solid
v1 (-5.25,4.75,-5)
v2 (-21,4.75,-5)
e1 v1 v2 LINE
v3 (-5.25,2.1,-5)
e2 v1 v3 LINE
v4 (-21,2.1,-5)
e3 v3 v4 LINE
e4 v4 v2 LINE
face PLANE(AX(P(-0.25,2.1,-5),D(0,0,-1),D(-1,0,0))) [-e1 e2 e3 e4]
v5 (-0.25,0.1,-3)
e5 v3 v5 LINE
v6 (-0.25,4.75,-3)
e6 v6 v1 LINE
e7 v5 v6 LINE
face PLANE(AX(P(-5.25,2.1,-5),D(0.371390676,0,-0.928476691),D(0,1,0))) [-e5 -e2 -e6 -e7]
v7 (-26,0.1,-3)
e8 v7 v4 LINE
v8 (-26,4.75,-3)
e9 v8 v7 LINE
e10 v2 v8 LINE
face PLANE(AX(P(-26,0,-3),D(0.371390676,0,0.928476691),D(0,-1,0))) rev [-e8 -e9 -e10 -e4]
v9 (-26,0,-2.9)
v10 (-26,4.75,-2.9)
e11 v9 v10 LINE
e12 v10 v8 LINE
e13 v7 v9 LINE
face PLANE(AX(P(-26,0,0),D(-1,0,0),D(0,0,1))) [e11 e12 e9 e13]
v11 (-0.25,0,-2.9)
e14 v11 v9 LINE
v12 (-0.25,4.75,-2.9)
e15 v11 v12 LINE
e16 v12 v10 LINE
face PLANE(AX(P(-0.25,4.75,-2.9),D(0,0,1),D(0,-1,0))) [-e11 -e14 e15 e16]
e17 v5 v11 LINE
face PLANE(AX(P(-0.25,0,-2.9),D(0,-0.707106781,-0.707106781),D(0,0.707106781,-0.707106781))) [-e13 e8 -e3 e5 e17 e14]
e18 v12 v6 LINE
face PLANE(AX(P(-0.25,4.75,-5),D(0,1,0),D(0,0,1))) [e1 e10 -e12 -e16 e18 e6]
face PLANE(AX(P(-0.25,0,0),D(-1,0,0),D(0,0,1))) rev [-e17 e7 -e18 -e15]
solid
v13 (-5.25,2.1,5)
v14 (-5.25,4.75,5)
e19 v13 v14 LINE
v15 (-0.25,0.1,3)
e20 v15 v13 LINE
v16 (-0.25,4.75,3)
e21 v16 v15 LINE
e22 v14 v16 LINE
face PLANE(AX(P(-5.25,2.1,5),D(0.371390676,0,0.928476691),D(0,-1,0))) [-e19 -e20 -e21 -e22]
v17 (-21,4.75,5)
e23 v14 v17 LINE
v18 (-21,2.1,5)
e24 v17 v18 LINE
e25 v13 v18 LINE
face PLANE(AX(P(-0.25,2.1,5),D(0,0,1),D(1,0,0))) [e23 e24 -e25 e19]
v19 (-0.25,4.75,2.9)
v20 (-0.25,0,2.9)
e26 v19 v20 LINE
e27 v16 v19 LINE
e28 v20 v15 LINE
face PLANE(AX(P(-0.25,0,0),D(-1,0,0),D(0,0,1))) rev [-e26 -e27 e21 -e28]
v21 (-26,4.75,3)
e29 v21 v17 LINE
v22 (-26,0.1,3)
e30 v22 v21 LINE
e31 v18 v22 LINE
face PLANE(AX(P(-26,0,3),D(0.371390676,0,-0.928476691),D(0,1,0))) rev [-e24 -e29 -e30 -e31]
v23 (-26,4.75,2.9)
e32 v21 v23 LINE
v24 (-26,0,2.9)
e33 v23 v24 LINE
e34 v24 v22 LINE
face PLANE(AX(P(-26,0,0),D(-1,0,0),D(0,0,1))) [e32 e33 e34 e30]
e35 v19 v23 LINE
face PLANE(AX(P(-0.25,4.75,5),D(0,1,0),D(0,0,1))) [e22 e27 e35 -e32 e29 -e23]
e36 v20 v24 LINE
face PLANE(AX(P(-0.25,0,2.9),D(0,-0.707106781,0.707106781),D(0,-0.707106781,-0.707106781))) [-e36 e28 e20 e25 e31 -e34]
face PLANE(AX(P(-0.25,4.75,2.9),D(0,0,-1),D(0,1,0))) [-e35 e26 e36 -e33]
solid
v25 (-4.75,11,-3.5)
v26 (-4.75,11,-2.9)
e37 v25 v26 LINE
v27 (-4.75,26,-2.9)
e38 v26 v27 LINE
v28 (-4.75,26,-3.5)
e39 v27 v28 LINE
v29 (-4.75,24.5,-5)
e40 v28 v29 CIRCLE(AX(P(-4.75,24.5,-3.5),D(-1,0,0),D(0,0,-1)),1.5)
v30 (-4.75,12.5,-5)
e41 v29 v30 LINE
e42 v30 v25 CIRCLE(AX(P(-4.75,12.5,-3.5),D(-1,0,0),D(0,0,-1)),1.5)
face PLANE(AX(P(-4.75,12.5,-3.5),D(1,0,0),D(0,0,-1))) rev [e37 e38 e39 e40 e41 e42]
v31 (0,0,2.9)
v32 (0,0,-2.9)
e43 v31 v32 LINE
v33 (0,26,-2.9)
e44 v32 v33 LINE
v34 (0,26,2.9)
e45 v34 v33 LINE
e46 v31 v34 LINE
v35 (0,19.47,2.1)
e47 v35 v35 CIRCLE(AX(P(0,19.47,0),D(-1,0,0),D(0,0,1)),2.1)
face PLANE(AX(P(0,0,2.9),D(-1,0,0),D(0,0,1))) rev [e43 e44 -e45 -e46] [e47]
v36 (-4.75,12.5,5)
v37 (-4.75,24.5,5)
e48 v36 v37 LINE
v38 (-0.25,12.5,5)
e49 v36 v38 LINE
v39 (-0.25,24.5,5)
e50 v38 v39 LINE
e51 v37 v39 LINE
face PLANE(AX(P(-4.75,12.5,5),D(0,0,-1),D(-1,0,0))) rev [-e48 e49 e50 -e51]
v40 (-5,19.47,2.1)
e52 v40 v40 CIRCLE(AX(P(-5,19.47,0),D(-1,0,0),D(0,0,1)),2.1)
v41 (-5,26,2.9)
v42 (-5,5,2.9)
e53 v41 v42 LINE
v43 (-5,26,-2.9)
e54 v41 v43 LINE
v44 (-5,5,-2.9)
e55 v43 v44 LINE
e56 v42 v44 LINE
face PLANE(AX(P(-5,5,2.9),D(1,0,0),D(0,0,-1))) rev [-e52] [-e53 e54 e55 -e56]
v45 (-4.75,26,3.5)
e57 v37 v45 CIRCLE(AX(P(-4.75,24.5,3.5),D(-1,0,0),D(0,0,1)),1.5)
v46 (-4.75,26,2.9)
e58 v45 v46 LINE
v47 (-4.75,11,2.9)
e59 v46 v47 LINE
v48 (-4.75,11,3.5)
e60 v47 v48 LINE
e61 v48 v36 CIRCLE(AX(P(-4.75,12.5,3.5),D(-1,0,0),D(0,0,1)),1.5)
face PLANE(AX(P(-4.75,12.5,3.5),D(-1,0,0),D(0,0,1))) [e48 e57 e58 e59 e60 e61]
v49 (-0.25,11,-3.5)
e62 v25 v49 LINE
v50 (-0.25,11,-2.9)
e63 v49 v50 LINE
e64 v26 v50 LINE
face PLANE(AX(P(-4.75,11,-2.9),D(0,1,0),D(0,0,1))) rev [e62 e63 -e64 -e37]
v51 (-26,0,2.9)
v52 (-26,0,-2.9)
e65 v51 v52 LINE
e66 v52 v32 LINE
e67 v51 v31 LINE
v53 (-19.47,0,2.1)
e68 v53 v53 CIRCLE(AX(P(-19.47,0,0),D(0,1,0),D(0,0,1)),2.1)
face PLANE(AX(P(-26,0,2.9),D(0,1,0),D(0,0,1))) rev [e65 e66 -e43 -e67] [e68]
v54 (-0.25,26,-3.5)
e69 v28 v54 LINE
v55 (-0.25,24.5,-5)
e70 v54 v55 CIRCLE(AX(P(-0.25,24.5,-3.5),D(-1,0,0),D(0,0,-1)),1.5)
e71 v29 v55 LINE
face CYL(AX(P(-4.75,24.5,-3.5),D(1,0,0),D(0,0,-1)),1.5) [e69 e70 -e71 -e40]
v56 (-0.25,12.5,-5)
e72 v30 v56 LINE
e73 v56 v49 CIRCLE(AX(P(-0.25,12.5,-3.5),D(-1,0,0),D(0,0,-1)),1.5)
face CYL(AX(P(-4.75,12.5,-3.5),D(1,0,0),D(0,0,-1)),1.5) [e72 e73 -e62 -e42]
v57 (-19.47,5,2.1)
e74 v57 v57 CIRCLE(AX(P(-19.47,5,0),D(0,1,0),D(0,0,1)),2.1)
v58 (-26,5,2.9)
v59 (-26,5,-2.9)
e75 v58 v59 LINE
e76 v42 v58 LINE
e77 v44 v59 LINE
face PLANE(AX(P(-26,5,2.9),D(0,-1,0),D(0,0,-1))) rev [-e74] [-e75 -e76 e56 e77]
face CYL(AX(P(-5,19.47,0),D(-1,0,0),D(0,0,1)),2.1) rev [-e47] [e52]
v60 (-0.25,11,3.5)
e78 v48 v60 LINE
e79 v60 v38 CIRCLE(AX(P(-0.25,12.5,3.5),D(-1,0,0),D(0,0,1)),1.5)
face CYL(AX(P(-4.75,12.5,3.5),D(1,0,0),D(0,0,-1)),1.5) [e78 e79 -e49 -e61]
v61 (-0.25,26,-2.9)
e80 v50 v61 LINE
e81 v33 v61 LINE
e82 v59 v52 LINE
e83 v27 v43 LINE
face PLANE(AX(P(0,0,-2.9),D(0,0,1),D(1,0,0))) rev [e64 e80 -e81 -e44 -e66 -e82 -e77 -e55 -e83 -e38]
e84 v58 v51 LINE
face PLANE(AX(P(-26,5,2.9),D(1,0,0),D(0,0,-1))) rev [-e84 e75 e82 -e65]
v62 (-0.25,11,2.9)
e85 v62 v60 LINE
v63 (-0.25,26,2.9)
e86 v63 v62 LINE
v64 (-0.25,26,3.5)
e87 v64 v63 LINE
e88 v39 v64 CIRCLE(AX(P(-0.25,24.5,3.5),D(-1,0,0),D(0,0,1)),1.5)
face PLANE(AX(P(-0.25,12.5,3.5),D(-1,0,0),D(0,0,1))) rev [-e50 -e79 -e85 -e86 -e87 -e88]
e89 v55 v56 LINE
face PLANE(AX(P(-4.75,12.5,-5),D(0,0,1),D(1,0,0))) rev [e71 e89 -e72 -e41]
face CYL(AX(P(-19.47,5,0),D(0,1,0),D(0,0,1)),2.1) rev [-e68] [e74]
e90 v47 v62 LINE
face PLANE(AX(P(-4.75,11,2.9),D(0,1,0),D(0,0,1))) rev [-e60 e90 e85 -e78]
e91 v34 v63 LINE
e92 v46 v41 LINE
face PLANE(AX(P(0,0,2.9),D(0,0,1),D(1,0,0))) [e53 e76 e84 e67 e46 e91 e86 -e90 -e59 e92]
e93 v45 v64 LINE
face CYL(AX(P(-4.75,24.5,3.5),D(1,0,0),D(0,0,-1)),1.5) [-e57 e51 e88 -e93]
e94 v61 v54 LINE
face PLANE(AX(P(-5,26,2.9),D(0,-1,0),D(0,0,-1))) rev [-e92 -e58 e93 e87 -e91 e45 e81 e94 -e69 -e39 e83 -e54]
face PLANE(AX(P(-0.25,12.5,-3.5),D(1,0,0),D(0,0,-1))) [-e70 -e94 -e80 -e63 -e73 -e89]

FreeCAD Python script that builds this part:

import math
import FreeCAD as App
import Part
import Sketcher
from FreeCAD import Vector
Q = App.Units.Quantity


def edges_at(feature, points):
    """Names of the edges that pass closest to the given points."""
    edges = feature.Shape.Edges
    near = lambda p: min(range(len(edges)), key=lambda i: edges[i].distToShape(Part.Vertex(*p))[0])
    return sorted({f"Edge{near(p) + 1}" for p in points})

doc = App.newDocument("Part")
body = doc.addObject("PartDesign::Body", "Body")

# Sketch on XY plane
sketch1 = body.newObject("Sketcher::SketchObject", "Sketch")
sketch1.AttachmentSupport = (doc.getObject("XY_Plane"), [""])
sketch1.MapMode = "FlatFace"
sketch1.addGeometry([
    Part.LineSegment(Vector(-26, 0, 0), Vector(0, 0, 0)),  # 0
    Part.LineSegment(Vector(0, 0, 0), Vector(0, 26, 0)),  # 1
    Part.LineSegment(Vector(0, 26, 0), Vector(-5, 26, 0)),  # 2
    Part.LineSegment(Vector(-5, 26, 0), Vector(-5, 5, 0)),  # 3
    Part.LineSegment(Vector(-5, 5, 0), Vector(-26, 5, 0)),  # 4
    Part.LineSegment(Vector(-26, 5, 0), Vector(-26, 0, 0)),  # 5
], False)
sketch1.addConstraint([
    Sketcher.Constraint("Coincident", 0, 2, 1, 1),
    Sketcher.Constraint("Coincident", 1, 2, 2, 1),
    Sketcher.Constraint("Coincident", 2, 2, 3, 1),
    Sketcher.Constraint("Coincident", 3, 2, 4, 1),
    Sketcher.Constraint("Coincident", 4, 2, 5, 1),
    Sketcher.Constraint("Coincident", 5, 2, 0, 1),
    Sketcher.Constraint("Horizontal", 0),
    Sketcher.Constraint("Vertical", 1),
    Sketcher.Constraint("Horizontal", 2),
    Sketcher.Constraint("Vertical", 3),
    Sketcher.Constraint("Horizontal", 4),
    Sketcher.Constraint("Vertical", 5),
    Sketcher.Constraint("Coincident", 0, 2, -1, 1),
    Sketcher.Constraint("Equal", 0, 1),
    Sketcher.Constraint("Equal", 4, 3),
    Sketcher.Constraint("DistanceX", 0, 1, 0, 2, 26.0),
    Sketcher.Constraint("DistanceX", 2, 2, 2, 1, 5.0),
])
pad1 = body.newObject("PartDesign::Pad", "Pad")
pad1.Profile = sketch1
pad1.Length = 5.8
pad1.Midplane = True

# Sketch on YZ plane
sketch2 = body.newObject("Sketcher::SketchObject", "Sketch001")
sketch2.AttachmentSupport = (doc.getObject("YZ_Plane"), [""])
sketch2.MapMode = "FlatFace"
sketch2.AttachmentOffset = App.Placement(Vector(0, 0, -2.5), App.Rotation())
sketch2.addGeometry([
    Part.LineSegment(Vector(11, -3.5, 0), Vector(11, -2.9, 0)),  # 0
    Part.LineSegment(Vector(11, -2.9, 0), Vector(26, -2.9, 0)),  # 1
    Part.LineSegment(Vector(26, -2.9, 0), Vector(26, -3.5, 0)),  # 2
    Part.ArcOfCircle(Part.Circle(Vector(24.5, -3.5, 0), Vector(0, 0, 1), 1.5), math.radians(-90), math.radians(0)),  # 3
    Part.LineSegment(Vector(24.5, -5, 0), Vector(12.5, -5, 0)),  # 4
    Part.ArcOfCircle(Part.Circle(Vector(12.5, -3.5, 0), Vector(0, 0, 1), 1.5), math.radians(180), math.radians(270)),  # 5
    Part.LineSegment(Vector(26, 2.9, 0), Vector(11, 2.9, 0)),  # 6
    Part.LineSegment(Vector(11, 2.9, 0), Vector(11, 3.5, 0)),  # 7
    Part.ArcOfCircle(Part.Circle(Vector(12.5, 3.5, 0), Vector(0, 0, 1), 1.5), math.radians(90), math.radians(180)),  # 8
    Part.LineSegment(Vector(12.5, 5, 0), Vector(24.5, 5, 0)),  # 9
    Part.ArcOfCircle(Part.Circle(Vector(24.5, 3.5, 0), Vector(0, 0, 1), 1.5), math.radians(0), math.radians(90)),  # 10
    Part.LineSegment(Vector(26, 3.5, 0), Vector(26, 2.9, 0)),  # 11
], False)
sketch2.addConstraint([
    Sketcher.Constraint("Coincident", 0, 2, 1, 1),
    Sketcher.Constraint("Coincident", 1, 2, 2, 1),
    Sketcher.Constraint("Tangent", 2, 2, 3, 2),
    Sketcher.Constraint("Tangent", 3, 1, 4, 1),
    Sketcher.Constraint("Tangent", 4, 2, 5, 2),
    Sketcher.Constraint("Tangent", 5, 1, 0, 1),
    Sketcher.Constraint("Coincident", 6, 2, 7, 1),
    Sketcher.Constraint("Tangent", 7, 2, 8, 2),
    Sketcher.Constraint("Tangent", 8, 1, 9, 1),
    Sketcher.Constraint("Tangent", 9, 2, 10, 2),
    Sketcher.Constraint("Tangent", 10, 1, 11, 1),
    Sketcher.Constraint("Coincident", 11, 2, 6, 1),
    Sketcher.Constraint("Vertical", 0),
    Sketcher.Constraint("Horizontal", 1),
    Sketcher.Constraint("Vertical", 2),
    Sketcher.Constraint("Horizontal", 4),
    Sketcher.Constraint("Horizontal", 6),
    Sketcher.Constraint("Vertical", 7),
    Sketcher.Constraint("Horizontal", 9),
    Sketcher.Constraint("Vertical", 11),
    Sketcher.Constraint("Equal", 3, 5),
    Sketcher.Constraint("Equal", 5, 8),
    Sketcher.Constraint("Equal", 8, 10),
    Sketcher.Constraint("Symmetric", 5, 3, 8, 3, -1),
    Sketcher.Constraint("Symmetric", 1, 2, 11, 2, -1),
    Sketcher.Constraint("Radius", 3, 1.5),
    Sketcher.Constraint("DistanceX", 1, 1, 1, 2, 15.0),
    Sketcher.Constraint("DistanceY", 0, 1, 0, 2, 0.6),
    Sketcher.Constraint("DistanceX", -1, 1, 0, 2, 11.0),
    Sketcher.Constraint("DistanceY", 3, 1, -1, 1, 5.0),
])
pad2 = body.newObject("PartDesign::Pad", "Pad001")
pad2.Profile = sketch2
pad2.Length = 4.5
pad2.Midplane = True

# Sketch on YZ plane
sketch3 = body.newObject("Sketcher::SketchObject", "Sketch002")
sketch3.AttachmentSupport = (doc.getObject("YZ_Plane"), [""])
sketch3.MapMode = "FlatFace"
sketch3.AttachmentOffset = App.Placement(Vector(0, 0, -19.47), App.Rotation())
sketch3.addGeometry([
    Part.LineSegment(Vector(-23.7, 0, 0), Vector(5, 0, 0)),
    Part.LineSegment(Vector(5, 0, 0), Vector(5, 2.1, 0)),
    Part.LineSegment(Vector(5, 2.1, 0), Vector(-22.4, 2.1, 0)),
    Part.LineSegment(Vector(-22.4, 2.1, 0), Vector(-23.7, 0, 0)),
], False)
sketch3.addConstraint([
    Sketcher.Constraint("Coincident", 0, 2, 1, 1),
    Sketcher.Constraint("Coincident", 1, 2, 2, 1),
    Sketcher.Constraint("Coincident", 2, 2, 3, 1),
    Sketcher.Constraint("Coincident", 3, 2, 0, 1),
    Sketcher.Constraint("Horizontal", 0),
    Sketcher.Constraint("Vertical", 1),
    Sketcher.Constraint("Horizontal", 2),
    Sketcher.Constraint("PointOnObject", 0, 2, -1),
    Sketcher.Constraint("Angle", 3, Q("-121 deg")),
    Sketcher.Constraint("DistanceX", 2, 2, 2, 1, 27.4),
    Sketcher.Constraint("DistanceY", 1, 1, 1, 2, 2.1),
    Sketcher.Constraint("DistanceX", -1, 1, 0, 2, 5.0),
])
groove = body.newObject("PartDesign::Groove", "Groove")
groove.Profile = sketch3
groove.ReferenceAxis = (sketch3, ["H_Axis"])
groove.Angle = 360
doc.recompute()

datumplane = body.newObject("PartDesign::Plane", "DatumPlane")
datumplane.Placement = App.Placement(Vector(0, 0, 0), App.Rotation(Vector(-0.707106781, 0.707106781, 0), Vector(0, 0, -1), Vector(-0.707106781, -0.707106781, 0), "ZXY"))
mirrored = body.newObject("PartDesign::Mirrored", "Mirrored")
mirrored.Originals = [groove]
mirrored.MirrorPlane = (datumplane, [""])
body.Tip = mirrored
body2 = doc.addObject("PartDesign::Body", "Body001")

# Sketch on YZ plane
sketch4 = body2.newObject("Sketcher::SketchObject", "Sketch003")
sketch4.AttachmentSupport = (doc.getObject("YZ_Plane001"), [""])
sketch4.MapMode = "FlatFace"
sketch4.AttachmentOffset = App.Placement(Vector(0, 0, -26), App.Rotation())
sketch4.addGeometry([
    Part.LineSegment(Vector(2.1, -5, 0), Vector(0, -2.9, 0)),
    Part.LineSegment(Vector(0, -2.9, 0), Vector(4.8, -2.9, 0)),
    Part.LineSegment(Vector(4.8, -2.9, 0), Vector(4.8, -5, 0)),
    Part.LineSegment(Vector(4.8, -5, 0), Vector(2.1, -5, 0)),
], False)
sketch4.addConstraint([
    Sketcher.Constraint("Coincident", 0, 2, 1, 1),
    Sketcher.Constraint("Coincident", 1, 2, 2, 1),
    Sketcher.Constraint("Coincident", 2, 2, 3, 1),
    Sketcher.Constraint("Coincident", 3, 2, 0, 1),
    Sketcher.Constraint("Horizontal", 1),
    Sketcher.Constraint("Vertical", 2),
    Sketcher.Constraint("Horizontal", 3),
    Sketcher.Constraint("PointOnObject", 0, 2, -2),
    Sketcher.Constraint("Angle", 0, Q("135 deg")),
    Sketcher.Constraint("DistanceY", 2, 2, 2, 1, 2.1),
    Sketcher.Constraint("DistanceY", 2, 2, -1, 1, 5.0),
    Sketcher.Constraint("DistanceX", 1, 1, 1, 2, 4.75),
])
pad3 = body2.newObject("PartDesign::Pad", "Pad002")
pad3.Profile = sketch4
pad3.Length = 25.75
doc.recompute()

chamfer = body2.newObject("PartDesign::Chamfer", "Chamfer")
chamfer.Base = (pad3, edges_at(pad3, [(-26, 3.425, -5)]))
chamfer.ChamferType = "Two distances"
chamfer.Size = 5
chamfer.Size2 = 2
doc.recompute()

chamfer2 = body2.newObject("PartDesign::Chamfer", "Chamfer001")
chamfer2.Base = (chamfer, edges_at(chamfer, [(-0.25, 3.425, -5)]))
chamfer2.ChamferType = "Two distances"
chamfer2.Size = 2
chamfer2.Size2 = 5
chamfer2.FlipDirection = True
body3 = doc.addObject("PartDesign::Body", "Body002")

# Sketch on YZ plane
sketch5 = body3.newObject("Sketcher::SketchObject", "Sketch004")
sketch5.AttachmentSupport = (doc.getObject("YZ_Plane002"), [""])
sketch5.MapMode = "FlatFace"
sketch5.AttachmentOffset = App.Placement(Vector(0, 0, -26), App.Rotation())
sketch5.addGeometry([
    Part.LineSegment(Vector(4.8, 2.9, 0), Vector(0, 2.9, 0)),
    Part.LineSegment(Vector(0, 2.9, 0), Vector(2.1, 5, 0)),
    Part.LineSegment(Vector(2.1, 5, 0), Vector(4.8, 5, 0)),
    Part.LineSegment(Vector(4.8, 5, 0), Vector(4.8, 2.9, 0)),
], False)
sketch5.addConstraint([
    Sketcher.Constraint("Coincident", 0, 2, 1, 1),
    Sketcher.Constraint("Coincident", 1, 2, 2, 1),
    Sketcher.Constraint("Coincident", 2, 2, 3, 1),
    Sketcher.Constraint("Coincident", 3, 2, 0, 1),
    Sketcher.Constraint("Horizontal", 0),
    Sketcher.Constraint("Horizontal", 2),
    Sketcher.Constraint("Vertical", 3),
    Sketcher.Constraint("PointOnObject", 0, 2, -2),
    Sketcher.Constraint("Angle", 1, Q("45 deg")),
    Sketcher.Constraint("DistanceY", 3, 2, 3, 1, 2.1),
    Sketcher.Constraint("DistanceY", -1, 1, 1, 2, 5.0),
    Sketcher.Constraint("DistanceX", 0, 2, 0, 1, 4.75),
])
pad4 = body3.newObject("PartDesign::Pad", "Pad003")
pad4.Profile = sketch5
pad4.Length = 25.75
doc.recompute()

chamfer3 = body3.newObject("PartDesign::Chamfer", "Chamfer002")
chamfer3.Base = (pad4, edges_at(pad4, [(-26, 3.425, 5)]))
chamfer3.ChamferType = "Two distances"
chamfer3.Size = 5
chamfer3.Size2 = 2
doc.recompute()

chamfer4 = body3.newObject("PartDesign::Chamfer", "Chamfer003")
chamfer4.Base = (chamfer3, edges_at(chamfer3, [(-0.25, 3.425, 5)]))
chamfer4.ChamferType = "Two distances"
chamfer4.Size = 2
chamfer4.Size2 = 5
chamfer4.FlipDirection = True

doc.recompute()
